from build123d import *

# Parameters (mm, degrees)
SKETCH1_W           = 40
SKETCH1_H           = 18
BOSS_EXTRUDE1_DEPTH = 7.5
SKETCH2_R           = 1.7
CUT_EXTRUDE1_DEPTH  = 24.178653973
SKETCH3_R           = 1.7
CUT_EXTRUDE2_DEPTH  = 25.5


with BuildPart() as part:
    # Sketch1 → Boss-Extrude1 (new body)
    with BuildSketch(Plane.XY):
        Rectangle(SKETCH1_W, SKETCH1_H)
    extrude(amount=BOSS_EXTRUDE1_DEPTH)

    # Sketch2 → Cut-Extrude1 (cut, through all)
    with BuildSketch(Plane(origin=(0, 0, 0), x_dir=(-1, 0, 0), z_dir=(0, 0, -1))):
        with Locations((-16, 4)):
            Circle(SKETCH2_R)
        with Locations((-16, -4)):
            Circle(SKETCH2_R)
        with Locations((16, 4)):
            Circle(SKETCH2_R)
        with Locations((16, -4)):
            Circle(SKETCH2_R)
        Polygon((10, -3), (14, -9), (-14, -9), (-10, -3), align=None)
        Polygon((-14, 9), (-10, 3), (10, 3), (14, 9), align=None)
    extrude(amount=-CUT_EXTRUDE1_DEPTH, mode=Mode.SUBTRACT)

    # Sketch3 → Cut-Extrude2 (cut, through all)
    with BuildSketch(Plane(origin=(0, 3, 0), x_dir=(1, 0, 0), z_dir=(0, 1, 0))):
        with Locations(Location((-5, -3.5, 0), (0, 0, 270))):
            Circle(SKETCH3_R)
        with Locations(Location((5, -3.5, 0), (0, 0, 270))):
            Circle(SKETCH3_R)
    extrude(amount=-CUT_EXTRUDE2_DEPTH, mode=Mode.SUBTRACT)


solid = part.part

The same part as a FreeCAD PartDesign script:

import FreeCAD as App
import Part
import Sketcher


def add_polygon(sketch, points):
    """Adds a closed chain of lines whose ends are joined by coincident constraints."""
    first, n = sketch.GeometryCount, len(points)
    for a, b in zip(points, points[1:] + points[:1]):
        sketch.addGeometry(Part.LineSegment(App.Vector(*a, 0), App.Vector(*b, 0)), False)
    for i in range(n):
        sketch.addConstraint(Sketcher.Constraint("Coincident", first + i, 2, first + (i + 1) % n, 1))

doc = App.newDocument("Part")
params = doc.addObject("Spreadsheet::Sheet", "Params")
for row, (alias, value) in enumerate([
    ("sketch1_width", "40 mm"),
    ("sketch1_height", "18 mm"),
    ("pad1_length", "7.5 mm"),
    ("sketch2_diameter", "3.4 mm"),
    ("sketch2_width", "20 mm"),
    ("sketch2_width2", "28 mm"),
    ("sketch3_diameter", "3.4 mm"),
], start=1):
    params.set(f"A{row}", alias)
    params.set(f"B{row}", "=" + value)
    params.setAlias(f"B{row}", alias)

body = doc.addObject("PartDesign::Body", "Body")

# Sketch on XY plane
sketch1 = body.newObject("Sketcher::SketchObject", "Sketch")
sketch1.AttachmentSupport = (doc.getObject("XY_Plane"), [""])
sketch1.MapMode = "FlatFace"
add_polygon(sketch1, [(-20, 9), (-20, -9), (20, -9), (20, 9)])  # lines 0-3
sketch1.addConstraint([
    Sketcher.Constraint("Vertical", 0),
    Sketcher.Constraint("Horizontal", 1),
    Sketcher.Constraint("Vertical", 2),
    Sketcher.Constraint("Horizontal", 3),
    Sketcher.Constraint("Symmetric", 0, 2, 2, 2, -1, 1),
    Sketcher.Constraint("DistanceX", 1, 1, 1, 2, 40.0),
    Sketcher.Constraint("DistanceY", 0, 2, 0, 1, 18.0),
])
sketch1.setExpression("Constraints[9]", "Params.sketch1_width")
sketch1.setExpression("Constraints[10]", "Params.sketch1_height")
pad1 = body.newObject("PartDesign::Pad", "Pad")
pad1.Profile = sketch1
pad1.setExpression("Length", "Params.pad1_length")

# Sketch on XY plane
sketch2 = body.newObject("Sketcher::SketchObject", "Sketch001")
sketch2.AttachmentSupport = (doc.getObject("XY_Plane"), [""])
sketch2.MapMode = "FlatFace"
sketch2.addGeometry(Part.Circle(App.Vector(16, 4, 0), App.Vector(0, 0, 1), 1.7), False)  # 0
sketch2.addGeometry(Part.Circle(App.Vector(16, -4, 0), App.Vector(0, 0, 1), 1.7), False)  # 1
sketch2.addGeometry(Part.Circle(App.Vector(-16, 4, 0), App.Vector(0, 0, 1), 1.7), False)  # 2
sketch2.addGeometry(Part.Circle(App.Vector(-16, -4, 0), App.Vector(0, 0, 1), 1.7), False)  # 3
add_polygon(sketch2, [(-14, -9), (-10, -3), (10, -3), (14, -9)])  # lines 4-7
add_polygon(sketch2, [(14, 9), (10, 3), (-10, 3), (-14, 9)])  # lines 8-11
sketch2.addConstraint([
    Sketcher.Constraint("Horizontal", 5),
    Sketcher.Constraint("Horizontal", 7),
    Sketcher.Constraint("Horizontal", 9),
    Sketcher.Constraint("Horizontal", 11),
    Sketcher.Constraint("Equal", 0, 1),
    Sketcher.Constraint("Equal", 1, 2),
    Sketcher.Constraint("Equal", 2, 3),
    Sketcher.Constraint("Symmetric", 1, 3, 2, 3, -1, 1),
    Sketcher.Constraint("Symmetric", 0, 3, 3, 3, -1, 1),
    Sketcher.Constraint("Symmetric", 4, 2, 8, 2, -1, 1),
    Sketcher.Constraint("Symmetric", 6, 2, 10, 2, -1, 1),
    Sketcher.Constraint("Symmetric", 0, 3, 2, 3, -2),
    Sketcher.Constraint("Parallel", 4, 8),
    Sketcher.Constraint("Parallel", 6, 10),
    Sketcher.Constraint("Vertical", 5, 2, 8, 2),
    Sketcher.Constraint("Vertical", 7, 2, 10, 2),
    Sketcher.Constraint("Diameter", 0, 3.4),
    Sketcher.Constraint("DistanceX", 5, 1, 5, 2, 20.0),
    Sketcher.Constraint("DistanceX", 7, 2, 7, 1, 28.0),
    Sketcher.Constraint("DistanceX", -1, 1, 0, 3, 16.0),
    Sketcher.Constraint("DistanceY", -1, 1, 0, 3, 4.0),
    Sketcher.Constraint("DistanceY", 4, 2, -1, 1, 3.0),
    Sketcher.Constraint("DistanceY", 6, 2, -1, 1, 9.0),
])
sketch2.setExpression("Constraints[24]", "Params.sketch2_diameter")
sketch2.setExpression("Constraints[25]", "Params.sketch2_width")
sketch2.setExpression("Constraints[26]", "Params.sketch2_width2")
pocket1 = body.newObject("PartDesign::Pocket", "Pocket")
pocket1.Profile = sketch2
pocket1.Type = "ThroughAll"
pocket1.Reversed = True

# Sketch on XZ plane
sketch3 = body.newObject("Sketcher::SketchObject", "Sketch002")
sketch3.AttachmentSupport = (doc.getObject("XZ_Plane"), [""])
sketch3.MapMode = "FlatFace"
sketch3.AttachmentOffset = App.Placement(App.Vector(0, 0, -3), App.Rotation())
sketch3.addGeometry([
    Part.Circle(App.Vector(-5, 3.5, 0), App.Vector(0, 0, 1), 1.7),
    Part.Circle(App.Vector(5, 3.5, 0), App.Vector(0, 0, 1), 1.7),
], False)
sketch3.addConstraint([
    Sketcher.Constraint("Equal", 0, 1),
    Sketcher.Constraint("Symmetric", 0, 3, 1, 3, -2),
    Sketcher.Constraint("Diameter", 0, 3.4),
    Sketcher.Constraint("DistanceX", 0, 3, -1, 1, 5.0),
    Sketcher.Constraint("DistanceY", -1, 1, 0, 3, 3.5),
])
sketch3.setExpression("Constraints[2]", "Params.sketch3_diameter")
pocket2 = body.newObject("PartDesign::Pocket", "Pocket001")
pocket2.Profile = sketch3
pocket2.Type = "ThroughAll"
pocket2.Reversed = True

doc.recompute()
